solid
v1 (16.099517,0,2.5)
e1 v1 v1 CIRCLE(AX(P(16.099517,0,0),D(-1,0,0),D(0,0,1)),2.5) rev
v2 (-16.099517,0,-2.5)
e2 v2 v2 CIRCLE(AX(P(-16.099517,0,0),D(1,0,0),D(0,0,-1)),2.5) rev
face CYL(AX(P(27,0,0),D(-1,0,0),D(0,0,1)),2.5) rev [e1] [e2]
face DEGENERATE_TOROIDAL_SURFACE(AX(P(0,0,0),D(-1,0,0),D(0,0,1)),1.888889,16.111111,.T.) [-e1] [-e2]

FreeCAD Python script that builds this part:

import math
import FreeCAD as App
import Part
import Sketcher
from FreeCAD import Vector

doc = App.newDocument("Part")
body = doc.addObject("PartDesign::Body", "Body")

sketch1 = body.newObject("Sketcher::SketchObject", "Sketch")
sketch1.AttachmentSupport = (doc.getObject("XZ_Plane"), [""])
sketch1.MapMode = "FlatFace"
sketch1.addGeometry(Part.LineSegment(Vector(0, 0, 0), Vector(16, 0, 0)), False)
sketch1.addGeometry(Part.ArcOfCircle(Part.Circle(Vector(0, -2, 0), Vector(0, 0, 1), 16), math.radians(-90), math.radians(7)), False)
sketch1.addGeometry(Part.LineSegment(Vector(0, -18, 0), Vector(0, 0, 0)), False)
sketch1.addConstraint(Sketcher.Constraint("Coincident", 0, 2, 1, 2))
sketch1.addConstraint(Sketcher.Constraint("Coincident", 1, 1, 2, 1))
sketch1.addConstraint(Sketcher.Constraint("Coincident", 2, 2, 0, 1))
sketch1.addConstraint(Sketcher.Constraint("Horizontal", 0))
sketch1.addConstraint(Sketcher.Constraint("Vertical", 2))
sketch1.addConstraint(Sketcher.Constraint("Coincident", 2, 2, -1, 1))
sketch1.addConstraint(Sketcher.Constraint("PointOnObject", 1, 3, -2))
sketch1.addConstraint(Sketcher.Constraint("DistanceX", 0, 1, 0, 2, 16.0))
sketch1.addConstraint(Sketcher.Constraint("DistanceY", 2, 1, 2, 2, 18.0))
revolution = body.newObject("PartDesign::Revolution", "Revolution")
revolution.Profile = sketch1
revolution.ReferenceAxis = (sketch1, ["H_Axis"])
revolution.Angle = 360
doc.recompute()

mirrored = body.newObject("PartDesign::Mirrored", "Mirrored")
mirrored.Originals = [revolution]
mirrored.MirrorPlane = (doc.getObject("YZ_Plane"), [""])
body.Tip = mirrored

sketch2 = body.newObject("Sketcher::SketchObject", "Sketch001")
sketch2.AttachmentSupport = (doc.getObject("YZ_Plane"), [""])
sketch2.MapMode = "FlatFace"
sketch2.addGeometry(Part.Circle(Vector(0, 0, 0), Vector(0, 0, 1), 2.5), False)
sketch2.addConstraint(Sketcher.Constraint("Coincident", 0, 3, -1, 1))
sketch2.addConstraint(Sketcher.Constraint("Diameter", 0, 5.0))
pocket1 = body.newObject("PartDesign::Pocket", "Pocket")
pocket1.Profile = sketch2
pocket1.Type = "ThroughAll"
pocket1.Midplane = True

doc.recompute()
